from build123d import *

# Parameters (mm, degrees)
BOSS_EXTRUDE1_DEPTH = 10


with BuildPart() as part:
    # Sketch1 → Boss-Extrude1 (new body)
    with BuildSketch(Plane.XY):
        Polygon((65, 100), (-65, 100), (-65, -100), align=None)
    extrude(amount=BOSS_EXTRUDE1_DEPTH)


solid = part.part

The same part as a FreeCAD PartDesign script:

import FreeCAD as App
import Part
import Sketcher
from FreeCAD import Vector
Q = App.Units.Quantity

doc = App.newDocument("Part")
body = doc.addObject("PartDesign::Body", "Body")

# Sketch on XY plane
sketch1 = body.newObject("Sketcher::SketchObject", "Sketch")
sketch1.AttachmentSupport = (doc.getObject("XY_Plane"), [""])
sketch1.MapMode = "FlatFace"
sketch1.addGeometry([
    Part.LineSegment(Vector(65, 100, 0), Vector(-65, 100, 0)),
    Part.LineSegment(Vector(-65, 100, 0), Vector(-65, -100, 0)),
    Part.LineSegment(Vector(-65, -100, 0), Vector(65, 100, 0)),
], False)
sketch1.addConstraint([
    Sketcher.Constraint("Coincident", 0, 2, 1, 1),
    Sketcher.Constraint("Coincident", 1, 2, 2, 1),
    Sketcher.Constraint("Coincident", 2, 2, 0, 1),
    Sketcher.Constraint("Horizontal", 0),
    Sketcher.Constraint("Vertical", 1),
    Sketcher.Constraint("Symmetric", 1, 2, 2, 2, -1, 1),
    Sketcher.Constraint("DistanceX", 0, 2, 0, 1, Q("130 mm")),
    Sketcher.Constraint("DistanceY", 1, 2, 1, 1, Q("200 mm")),
])
pad1 = body.newObject("PartDesign::Pad", "Pad")
pad1.Profile = sketch1
pad1.Length = 10

doc.recompute()
